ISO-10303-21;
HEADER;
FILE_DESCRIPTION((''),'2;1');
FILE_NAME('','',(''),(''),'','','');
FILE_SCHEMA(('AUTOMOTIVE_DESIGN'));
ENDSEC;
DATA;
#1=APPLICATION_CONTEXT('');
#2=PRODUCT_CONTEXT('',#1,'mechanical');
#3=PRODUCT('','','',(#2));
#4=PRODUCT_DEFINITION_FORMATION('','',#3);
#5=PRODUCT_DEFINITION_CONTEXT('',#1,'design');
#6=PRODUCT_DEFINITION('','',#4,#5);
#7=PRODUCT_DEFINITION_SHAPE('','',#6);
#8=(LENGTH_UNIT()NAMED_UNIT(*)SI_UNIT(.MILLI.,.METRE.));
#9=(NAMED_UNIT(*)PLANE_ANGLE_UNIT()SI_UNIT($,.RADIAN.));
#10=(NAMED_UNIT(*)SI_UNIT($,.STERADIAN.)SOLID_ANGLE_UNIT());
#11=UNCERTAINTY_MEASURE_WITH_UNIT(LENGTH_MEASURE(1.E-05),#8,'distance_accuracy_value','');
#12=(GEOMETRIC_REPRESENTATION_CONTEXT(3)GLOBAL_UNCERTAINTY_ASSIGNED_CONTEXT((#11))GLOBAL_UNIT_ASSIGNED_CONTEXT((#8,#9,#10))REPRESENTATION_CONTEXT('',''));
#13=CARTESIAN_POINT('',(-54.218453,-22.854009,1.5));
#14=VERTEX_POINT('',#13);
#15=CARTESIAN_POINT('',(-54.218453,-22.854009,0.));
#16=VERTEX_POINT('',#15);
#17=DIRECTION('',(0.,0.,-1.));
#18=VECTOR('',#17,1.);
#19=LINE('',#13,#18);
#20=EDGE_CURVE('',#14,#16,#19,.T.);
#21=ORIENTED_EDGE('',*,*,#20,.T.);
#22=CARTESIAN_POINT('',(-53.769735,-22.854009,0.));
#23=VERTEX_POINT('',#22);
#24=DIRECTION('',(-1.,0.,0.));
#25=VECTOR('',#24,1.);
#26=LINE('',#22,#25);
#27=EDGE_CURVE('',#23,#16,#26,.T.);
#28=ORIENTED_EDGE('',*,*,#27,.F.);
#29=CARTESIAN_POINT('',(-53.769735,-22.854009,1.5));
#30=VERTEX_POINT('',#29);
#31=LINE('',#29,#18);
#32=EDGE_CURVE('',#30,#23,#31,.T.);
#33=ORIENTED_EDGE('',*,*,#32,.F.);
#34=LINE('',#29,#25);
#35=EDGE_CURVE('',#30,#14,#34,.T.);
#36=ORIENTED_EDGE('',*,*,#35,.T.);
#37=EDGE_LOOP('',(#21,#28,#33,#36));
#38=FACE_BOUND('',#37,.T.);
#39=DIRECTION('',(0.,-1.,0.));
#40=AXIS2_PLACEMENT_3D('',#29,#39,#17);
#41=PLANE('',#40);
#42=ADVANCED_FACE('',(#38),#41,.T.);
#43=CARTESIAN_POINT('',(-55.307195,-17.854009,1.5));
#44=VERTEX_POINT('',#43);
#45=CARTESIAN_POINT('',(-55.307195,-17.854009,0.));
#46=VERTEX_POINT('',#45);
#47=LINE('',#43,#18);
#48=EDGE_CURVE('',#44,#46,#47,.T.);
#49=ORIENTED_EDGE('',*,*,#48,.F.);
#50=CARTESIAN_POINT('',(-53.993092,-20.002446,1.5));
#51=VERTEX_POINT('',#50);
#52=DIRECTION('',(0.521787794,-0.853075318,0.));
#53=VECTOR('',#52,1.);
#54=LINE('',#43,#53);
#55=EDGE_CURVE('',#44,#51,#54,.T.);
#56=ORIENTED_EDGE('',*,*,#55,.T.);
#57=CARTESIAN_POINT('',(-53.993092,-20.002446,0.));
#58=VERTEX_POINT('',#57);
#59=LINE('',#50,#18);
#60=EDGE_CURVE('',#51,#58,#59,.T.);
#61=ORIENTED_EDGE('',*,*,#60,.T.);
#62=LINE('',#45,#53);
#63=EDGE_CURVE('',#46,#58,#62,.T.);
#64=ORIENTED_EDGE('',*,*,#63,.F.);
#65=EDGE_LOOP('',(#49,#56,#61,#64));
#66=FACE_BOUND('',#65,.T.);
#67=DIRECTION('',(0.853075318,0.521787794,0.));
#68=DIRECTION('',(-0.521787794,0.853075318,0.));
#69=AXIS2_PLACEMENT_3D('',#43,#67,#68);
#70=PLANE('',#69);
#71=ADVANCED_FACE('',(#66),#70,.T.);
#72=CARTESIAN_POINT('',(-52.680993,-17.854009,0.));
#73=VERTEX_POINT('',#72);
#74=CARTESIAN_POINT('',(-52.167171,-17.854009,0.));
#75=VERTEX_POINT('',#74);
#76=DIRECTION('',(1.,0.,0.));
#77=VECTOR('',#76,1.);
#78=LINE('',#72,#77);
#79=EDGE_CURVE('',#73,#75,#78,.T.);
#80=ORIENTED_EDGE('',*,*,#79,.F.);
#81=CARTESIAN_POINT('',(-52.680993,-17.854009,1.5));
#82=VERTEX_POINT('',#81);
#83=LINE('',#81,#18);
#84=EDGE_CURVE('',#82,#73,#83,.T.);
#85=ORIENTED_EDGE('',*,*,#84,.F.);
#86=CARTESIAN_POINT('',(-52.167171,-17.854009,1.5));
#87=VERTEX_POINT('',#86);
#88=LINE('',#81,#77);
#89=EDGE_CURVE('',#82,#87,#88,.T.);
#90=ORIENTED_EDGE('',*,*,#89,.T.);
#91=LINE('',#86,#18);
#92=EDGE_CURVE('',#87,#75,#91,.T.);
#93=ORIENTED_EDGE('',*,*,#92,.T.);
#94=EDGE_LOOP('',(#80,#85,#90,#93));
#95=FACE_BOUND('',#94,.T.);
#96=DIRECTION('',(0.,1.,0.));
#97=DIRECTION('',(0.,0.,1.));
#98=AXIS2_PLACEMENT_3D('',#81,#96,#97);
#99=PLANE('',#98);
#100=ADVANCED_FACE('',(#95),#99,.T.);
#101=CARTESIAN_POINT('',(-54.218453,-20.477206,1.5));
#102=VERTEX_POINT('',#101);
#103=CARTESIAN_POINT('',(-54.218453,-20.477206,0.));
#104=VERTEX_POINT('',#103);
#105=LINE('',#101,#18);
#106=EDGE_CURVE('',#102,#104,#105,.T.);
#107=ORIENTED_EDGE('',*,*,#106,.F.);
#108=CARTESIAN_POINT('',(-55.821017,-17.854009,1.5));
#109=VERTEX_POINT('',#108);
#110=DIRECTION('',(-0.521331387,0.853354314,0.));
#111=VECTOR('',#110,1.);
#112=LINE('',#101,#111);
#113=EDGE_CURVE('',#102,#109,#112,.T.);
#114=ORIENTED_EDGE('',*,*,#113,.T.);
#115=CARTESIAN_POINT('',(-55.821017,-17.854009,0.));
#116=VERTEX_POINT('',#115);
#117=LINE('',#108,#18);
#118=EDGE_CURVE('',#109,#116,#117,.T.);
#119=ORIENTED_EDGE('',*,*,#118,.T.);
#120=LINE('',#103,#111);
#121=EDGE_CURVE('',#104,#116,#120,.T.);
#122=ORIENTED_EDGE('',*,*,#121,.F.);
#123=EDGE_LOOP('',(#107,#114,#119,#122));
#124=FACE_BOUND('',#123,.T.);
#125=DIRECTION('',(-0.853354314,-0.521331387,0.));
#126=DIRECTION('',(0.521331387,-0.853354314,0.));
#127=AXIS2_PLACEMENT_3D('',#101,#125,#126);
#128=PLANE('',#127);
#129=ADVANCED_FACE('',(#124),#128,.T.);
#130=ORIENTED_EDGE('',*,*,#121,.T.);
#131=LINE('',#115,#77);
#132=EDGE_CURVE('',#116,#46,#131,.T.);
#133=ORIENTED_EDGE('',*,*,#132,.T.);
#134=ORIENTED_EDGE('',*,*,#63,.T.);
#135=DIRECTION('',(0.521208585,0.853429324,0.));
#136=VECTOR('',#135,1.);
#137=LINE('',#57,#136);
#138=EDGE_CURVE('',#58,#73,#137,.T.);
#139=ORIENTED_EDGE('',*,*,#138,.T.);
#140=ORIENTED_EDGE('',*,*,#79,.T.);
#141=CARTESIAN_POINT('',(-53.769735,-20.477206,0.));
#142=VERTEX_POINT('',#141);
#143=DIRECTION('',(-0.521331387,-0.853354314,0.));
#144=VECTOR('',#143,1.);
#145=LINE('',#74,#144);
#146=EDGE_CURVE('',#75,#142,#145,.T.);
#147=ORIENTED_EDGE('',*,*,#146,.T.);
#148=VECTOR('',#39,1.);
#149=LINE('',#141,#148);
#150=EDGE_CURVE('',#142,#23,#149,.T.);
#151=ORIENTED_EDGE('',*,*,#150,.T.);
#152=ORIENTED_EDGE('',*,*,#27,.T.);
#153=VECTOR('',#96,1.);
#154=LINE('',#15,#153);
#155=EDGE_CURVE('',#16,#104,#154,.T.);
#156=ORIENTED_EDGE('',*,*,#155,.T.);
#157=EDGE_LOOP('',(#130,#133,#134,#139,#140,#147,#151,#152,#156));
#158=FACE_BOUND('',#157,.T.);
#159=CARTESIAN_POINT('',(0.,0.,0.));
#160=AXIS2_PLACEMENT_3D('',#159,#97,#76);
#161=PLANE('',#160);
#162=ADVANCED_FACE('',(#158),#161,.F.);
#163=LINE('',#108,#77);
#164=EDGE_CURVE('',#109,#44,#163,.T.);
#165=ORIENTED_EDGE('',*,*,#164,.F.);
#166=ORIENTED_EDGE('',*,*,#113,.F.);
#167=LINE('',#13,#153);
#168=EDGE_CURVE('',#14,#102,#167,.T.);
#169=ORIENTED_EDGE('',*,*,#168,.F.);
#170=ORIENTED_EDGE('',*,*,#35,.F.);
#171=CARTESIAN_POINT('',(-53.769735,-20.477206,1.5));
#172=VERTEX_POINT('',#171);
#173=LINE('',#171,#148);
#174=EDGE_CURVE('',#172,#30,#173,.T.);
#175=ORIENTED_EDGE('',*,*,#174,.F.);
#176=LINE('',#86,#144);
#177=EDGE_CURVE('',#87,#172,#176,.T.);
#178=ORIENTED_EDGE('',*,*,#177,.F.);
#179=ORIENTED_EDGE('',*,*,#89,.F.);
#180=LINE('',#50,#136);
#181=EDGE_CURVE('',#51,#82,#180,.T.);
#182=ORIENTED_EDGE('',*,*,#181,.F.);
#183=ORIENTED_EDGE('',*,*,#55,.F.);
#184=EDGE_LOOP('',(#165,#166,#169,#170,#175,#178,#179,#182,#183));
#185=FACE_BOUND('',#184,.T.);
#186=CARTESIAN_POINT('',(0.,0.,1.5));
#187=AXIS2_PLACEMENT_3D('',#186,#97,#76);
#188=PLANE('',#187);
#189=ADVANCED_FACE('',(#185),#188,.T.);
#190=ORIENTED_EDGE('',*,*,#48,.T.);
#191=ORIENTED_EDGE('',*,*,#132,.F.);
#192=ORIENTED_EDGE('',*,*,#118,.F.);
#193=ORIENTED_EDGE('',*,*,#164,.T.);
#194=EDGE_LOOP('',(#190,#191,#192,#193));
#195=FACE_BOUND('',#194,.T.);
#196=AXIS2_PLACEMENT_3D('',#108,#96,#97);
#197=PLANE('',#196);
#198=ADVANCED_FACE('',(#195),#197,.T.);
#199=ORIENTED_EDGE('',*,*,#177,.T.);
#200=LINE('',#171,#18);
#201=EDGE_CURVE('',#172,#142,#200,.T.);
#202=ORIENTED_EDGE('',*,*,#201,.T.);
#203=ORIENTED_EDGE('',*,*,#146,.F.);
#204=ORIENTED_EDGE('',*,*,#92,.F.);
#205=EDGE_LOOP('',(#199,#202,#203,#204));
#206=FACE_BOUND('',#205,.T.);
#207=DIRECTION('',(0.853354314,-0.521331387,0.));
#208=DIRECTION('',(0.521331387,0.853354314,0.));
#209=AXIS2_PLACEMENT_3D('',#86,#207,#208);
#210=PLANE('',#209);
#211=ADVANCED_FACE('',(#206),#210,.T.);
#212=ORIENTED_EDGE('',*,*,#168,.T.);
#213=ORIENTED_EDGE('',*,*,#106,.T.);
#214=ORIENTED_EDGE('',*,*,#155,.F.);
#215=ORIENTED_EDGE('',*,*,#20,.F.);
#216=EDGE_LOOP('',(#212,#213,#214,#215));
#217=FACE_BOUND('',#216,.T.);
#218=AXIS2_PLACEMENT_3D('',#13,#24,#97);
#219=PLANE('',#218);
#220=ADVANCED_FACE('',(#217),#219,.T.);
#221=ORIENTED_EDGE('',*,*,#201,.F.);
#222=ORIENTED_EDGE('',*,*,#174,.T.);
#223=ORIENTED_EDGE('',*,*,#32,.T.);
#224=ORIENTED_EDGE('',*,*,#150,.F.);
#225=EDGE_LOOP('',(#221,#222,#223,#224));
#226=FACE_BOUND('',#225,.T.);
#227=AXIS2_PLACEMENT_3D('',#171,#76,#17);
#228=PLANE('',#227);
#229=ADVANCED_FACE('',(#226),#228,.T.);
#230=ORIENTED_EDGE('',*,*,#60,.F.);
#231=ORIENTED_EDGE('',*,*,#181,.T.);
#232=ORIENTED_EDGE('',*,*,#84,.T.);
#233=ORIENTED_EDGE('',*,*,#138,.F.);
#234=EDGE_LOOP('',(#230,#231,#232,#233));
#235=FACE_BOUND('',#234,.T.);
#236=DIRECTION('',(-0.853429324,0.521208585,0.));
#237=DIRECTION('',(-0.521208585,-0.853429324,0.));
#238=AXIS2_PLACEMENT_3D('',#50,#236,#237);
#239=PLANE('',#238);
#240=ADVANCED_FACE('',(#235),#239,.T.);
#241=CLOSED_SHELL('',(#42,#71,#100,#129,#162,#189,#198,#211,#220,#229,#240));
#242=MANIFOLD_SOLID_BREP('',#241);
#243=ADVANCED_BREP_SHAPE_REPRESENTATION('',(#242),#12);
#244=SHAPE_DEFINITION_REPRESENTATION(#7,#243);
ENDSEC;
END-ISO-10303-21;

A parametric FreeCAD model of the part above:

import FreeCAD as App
import Part
import Sketcher

V = App.Vector
Q = App.Units.Quantity


def add_polygon(sketch, points):
    """Adds a closed chain of lines whose ends are joined by coincident constraints."""
    first, n = sketch.GeometryCount, len(points)
    for a, b in zip(points, points[1:] + points[:1]):
        sketch.addGeometry(Part.LineSegment(App.Vector(*a, 0), App.Vector(*b, 0)), False)
    for i in range(n):
        sketch.addConstraint(Sketcher.Constraint("Coincident", first + i, 2, first + (i + 1) % n, 1))

doc = App.newDocument("Part")
params = doc.addObject("Spreadsheet::Sheet", "Params")
for row, (alias, value) in enumerate([
    ("pad1_length", "1.5 mm"),
], start=1):
    params.set(f"A{row}", alias)
    params.set(f"B{row}", "=" + value)
    params.setAlias(f"B{row}", alias)

body = doc.addObject("PartDesign::Body", "Body")

sketch1 = body.newObject("Sketcher::SketchObject", "Sketch")
sketch1.AttachmentSupport = (doc.getObject("XY_Plane"), [""])
sketch1.MapMode = "FlatFace"
add_polygon(sketch1, [(-55.31, -17.85), (-55.82, -17.85), (-54.22, -20.48), (-54.22, -22.85), (-53.77, -22.85), (-53.77, -20.48), (-52.17, -17.85), (-52.68, -17.85), (-53.99, -20)])
sketch1.addConstraint([
    Sketcher.Constraint("Horizontal", 0),
    Sketcher.Constraint("Vertical", 2),
    Sketcher.Constraint("Horizontal", 3),
    Sketcher.Constraint("Vertical", 4),
    Sketcher.Constraint("Horizontal", 6),
    Sketcher.Constraint("Horizontal", 1, 2, 4, 2),
    Sketcher.Constraint("Horizontal", 0, 2, 5, 2),
    Sketcher.Constraint("Equal", 0, 6),
    Sketcher.Constraint("Equal", 1, 5),
    Sketcher.Constraint("DistanceY", 2, 2, 0, 2, Q("5 mm")),
    Sketcher.Constraint("DistanceX", 7, 2, 6, 2, Q("1.312099 mm")),
    Sketcher.Constraint("DistanceX", 8, 2, 6, 2, Q("2.626202 mm")),
    Sketcher.Constraint("Distance", 8, Q("2.518462 mm")),
    Sketcher.Constraint("DistanceX", 0, 2, 0, 1, Q("0.513822 mm")),
    Sketcher.Constraint("DistanceX", 3, 1, 3, 2, Q("0.448718 mm")),
    Sketcher.Constraint("DistanceY", 2, 2, 2, 1, Q("2.376803 mm")),
    Sketcher.Constraint("DistanceY", 0, 2, -1, 1, Q("17.854009 mm")),
    Sketcher.Constraint("DistanceX", 5, 2, -1, 1, Q("52.167171 mm")),
])
pad1 = body.newObject("PartDesign::Pad", "Pad")
pad1.Profile = sketch1
pad1.setExpression("Length", "Params.pad1_length")

doc.recompute()
